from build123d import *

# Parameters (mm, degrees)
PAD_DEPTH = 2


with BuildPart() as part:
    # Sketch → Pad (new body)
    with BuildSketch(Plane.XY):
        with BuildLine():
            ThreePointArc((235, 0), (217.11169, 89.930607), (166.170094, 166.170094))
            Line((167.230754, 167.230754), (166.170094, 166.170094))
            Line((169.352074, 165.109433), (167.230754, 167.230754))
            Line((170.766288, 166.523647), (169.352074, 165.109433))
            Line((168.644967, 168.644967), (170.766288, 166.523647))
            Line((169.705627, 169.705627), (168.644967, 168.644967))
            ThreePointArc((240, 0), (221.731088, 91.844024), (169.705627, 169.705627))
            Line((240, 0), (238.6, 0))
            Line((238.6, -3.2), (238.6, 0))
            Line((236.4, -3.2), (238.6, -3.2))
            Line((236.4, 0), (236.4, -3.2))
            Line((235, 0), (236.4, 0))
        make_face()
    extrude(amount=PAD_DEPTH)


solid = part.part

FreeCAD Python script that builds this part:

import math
import FreeCAD as App
import Part
import Sketcher
from FreeCAD import Vector
Q = App.Units.Quantity

doc = App.newDocument("Part")
body = doc.addObject("PartDesign::Body", "Body")

sketch1 = doc.addObject("Sketcher::SketchObject", "Sketch")
body.addObject(sketch1)
sketch1.AttachmentSupport = (doc.XY_Plane, [""])
sketch1.MapMode = "FlatFace"
sketch1.addGeometry([
    Part.ArcOfCircle(Part.Circle(Vector(0, 0, 0), Vector(0, 0, 1), 235), math.radians(0), math.radians(45)),
    Part.LineSegment(Vector(235, 0, 0), Vector(236.4, 0, 0)),
    Part.LineSegment(Vector(236.4, 0, 0), Vector(236.4, -3.2, 0)),
    Part.LineSegment(Vector(236.4, -3.2, 0), Vector(238.6, -3.2, 0)),
    Part.LineSegment(Vector(238.6, -3.2, 0), Vector(238.6, 0, 0)),
    Part.LineSegment(Vector(238.6, 0, 0), Vector(240, 0, 0)),
    Part.ArcOfCircle(Part.Circle(Vector(0, 0, 0), Vector(0, 0, 1), 240), math.radians(0), math.radians(45)),
    Part.LineSegment(Vector(169.7, 169.7, 0), Vector(168.6, 168.6, 0)),
    Part.LineSegment(Vector(168.6, 168.6, 0), Vector(170.8, 166.5, 0)),
    Part.LineSegment(Vector(170.8, 166.5, 0), Vector(169.4, 165.1, 0)),
    Part.LineSegment(Vector(169.4, 165.1, 0), Vector(167.2, 167.2, 0)),
    Part.LineSegment(Vector(167.2, 167.2, 0), Vector(166.2, 166.2, 0)),
], False)
sketch1.addConstraint([
    Sketcher.Constraint("Coincident", 0, 1, 1, 1),
    Sketcher.Constraint("Coincident", 1, 2, 2, 1),
    Sketcher.Constraint("Coincident", 2, 2, 3, 1),
    Sketcher.Constraint("Coincident", 3, 2, 4, 1),
    Sketcher.Constraint("Coincident", 4, 2, 5, 1),
    Sketcher.Constraint("Coincident", 5, 2, 6, 1),
    Sketcher.Constraint("Coincident", 6, 2, 7, 1),
    Sketcher.Constraint("Coincident", 7, 2, 8, 1),
    Sketcher.Constraint("Coincident", 8, 2, 9, 1),
    Sketcher.Constraint("Coincident", 9, 2, 10, 1),
    Sketcher.Constraint("Coincident", 10, 2, 11, 1),
    Sketcher.Constraint("Coincident", 11, 2, 0, 2),
    Sketcher.Constraint("Horizontal", 1),
    Sketcher.Constraint("Vertical", 2),
    Sketcher.Constraint("Horizontal", 3),
    Sketcher.Constraint("Vertical", 4),
    Sketcher.Constraint("Horizontal", 5),
    Sketcher.Constraint("Coincident", 0, 3, -1, 1),
    Sketcher.Constraint("Coincident", 6, 3, -1, 1),
    Sketcher.Constraint("PointOnObject", 0, 1, -1),
    Sketcher.Constraint("PointOnObject", 4, 2, -1),
    Sketcher.Constraint("Perpendicular", 7, 8),
    Sketcher.Constraint("Perpendicular", 8, 9),
    Sketcher.Constraint("Perpendicular", 9, 10),
    Sketcher.Constraint("Perpendicular", 10, 11),
    Sketcher.Constraint("Equal", 1, 5),
    Sketcher.Constraint("Equal", 8, 10),
    Sketcher.Constraint("Equal", 7, 11),
    Sketcher.Constraint("Angle", 7, Q("-135 deg")),
    Sketcher.Constraint("Distance", 8, Q("3 mm")),
    Sketcher.Constraint("Distance", 9, Q("2.000001 mm")),
    Sketcher.Constraint("DistanceX", 1, 1, 1, 2, Q("1.4 mm")),
    Sketcher.Constraint("DistanceX", 3, 1, 3, 2, Q("2.2 mm")),
    Sketcher.Constraint("DistanceY", 2, 2, 2, 1, Q("3.2 mm")),
    Sketcher.Constraint("DistanceX", -1, 1, 0, 1, Q("235 mm")),
    Sketcher.Constraint("DistanceX", -1, 1, 8, 2, Q("170.766288 mm")),
])
pad1 = doc.addObject("PartDesign::Pad", "Pad")
body.addObject(pad1)
pad1.Profile = sketch1
pad1.Length = 2

doc.recompute()
